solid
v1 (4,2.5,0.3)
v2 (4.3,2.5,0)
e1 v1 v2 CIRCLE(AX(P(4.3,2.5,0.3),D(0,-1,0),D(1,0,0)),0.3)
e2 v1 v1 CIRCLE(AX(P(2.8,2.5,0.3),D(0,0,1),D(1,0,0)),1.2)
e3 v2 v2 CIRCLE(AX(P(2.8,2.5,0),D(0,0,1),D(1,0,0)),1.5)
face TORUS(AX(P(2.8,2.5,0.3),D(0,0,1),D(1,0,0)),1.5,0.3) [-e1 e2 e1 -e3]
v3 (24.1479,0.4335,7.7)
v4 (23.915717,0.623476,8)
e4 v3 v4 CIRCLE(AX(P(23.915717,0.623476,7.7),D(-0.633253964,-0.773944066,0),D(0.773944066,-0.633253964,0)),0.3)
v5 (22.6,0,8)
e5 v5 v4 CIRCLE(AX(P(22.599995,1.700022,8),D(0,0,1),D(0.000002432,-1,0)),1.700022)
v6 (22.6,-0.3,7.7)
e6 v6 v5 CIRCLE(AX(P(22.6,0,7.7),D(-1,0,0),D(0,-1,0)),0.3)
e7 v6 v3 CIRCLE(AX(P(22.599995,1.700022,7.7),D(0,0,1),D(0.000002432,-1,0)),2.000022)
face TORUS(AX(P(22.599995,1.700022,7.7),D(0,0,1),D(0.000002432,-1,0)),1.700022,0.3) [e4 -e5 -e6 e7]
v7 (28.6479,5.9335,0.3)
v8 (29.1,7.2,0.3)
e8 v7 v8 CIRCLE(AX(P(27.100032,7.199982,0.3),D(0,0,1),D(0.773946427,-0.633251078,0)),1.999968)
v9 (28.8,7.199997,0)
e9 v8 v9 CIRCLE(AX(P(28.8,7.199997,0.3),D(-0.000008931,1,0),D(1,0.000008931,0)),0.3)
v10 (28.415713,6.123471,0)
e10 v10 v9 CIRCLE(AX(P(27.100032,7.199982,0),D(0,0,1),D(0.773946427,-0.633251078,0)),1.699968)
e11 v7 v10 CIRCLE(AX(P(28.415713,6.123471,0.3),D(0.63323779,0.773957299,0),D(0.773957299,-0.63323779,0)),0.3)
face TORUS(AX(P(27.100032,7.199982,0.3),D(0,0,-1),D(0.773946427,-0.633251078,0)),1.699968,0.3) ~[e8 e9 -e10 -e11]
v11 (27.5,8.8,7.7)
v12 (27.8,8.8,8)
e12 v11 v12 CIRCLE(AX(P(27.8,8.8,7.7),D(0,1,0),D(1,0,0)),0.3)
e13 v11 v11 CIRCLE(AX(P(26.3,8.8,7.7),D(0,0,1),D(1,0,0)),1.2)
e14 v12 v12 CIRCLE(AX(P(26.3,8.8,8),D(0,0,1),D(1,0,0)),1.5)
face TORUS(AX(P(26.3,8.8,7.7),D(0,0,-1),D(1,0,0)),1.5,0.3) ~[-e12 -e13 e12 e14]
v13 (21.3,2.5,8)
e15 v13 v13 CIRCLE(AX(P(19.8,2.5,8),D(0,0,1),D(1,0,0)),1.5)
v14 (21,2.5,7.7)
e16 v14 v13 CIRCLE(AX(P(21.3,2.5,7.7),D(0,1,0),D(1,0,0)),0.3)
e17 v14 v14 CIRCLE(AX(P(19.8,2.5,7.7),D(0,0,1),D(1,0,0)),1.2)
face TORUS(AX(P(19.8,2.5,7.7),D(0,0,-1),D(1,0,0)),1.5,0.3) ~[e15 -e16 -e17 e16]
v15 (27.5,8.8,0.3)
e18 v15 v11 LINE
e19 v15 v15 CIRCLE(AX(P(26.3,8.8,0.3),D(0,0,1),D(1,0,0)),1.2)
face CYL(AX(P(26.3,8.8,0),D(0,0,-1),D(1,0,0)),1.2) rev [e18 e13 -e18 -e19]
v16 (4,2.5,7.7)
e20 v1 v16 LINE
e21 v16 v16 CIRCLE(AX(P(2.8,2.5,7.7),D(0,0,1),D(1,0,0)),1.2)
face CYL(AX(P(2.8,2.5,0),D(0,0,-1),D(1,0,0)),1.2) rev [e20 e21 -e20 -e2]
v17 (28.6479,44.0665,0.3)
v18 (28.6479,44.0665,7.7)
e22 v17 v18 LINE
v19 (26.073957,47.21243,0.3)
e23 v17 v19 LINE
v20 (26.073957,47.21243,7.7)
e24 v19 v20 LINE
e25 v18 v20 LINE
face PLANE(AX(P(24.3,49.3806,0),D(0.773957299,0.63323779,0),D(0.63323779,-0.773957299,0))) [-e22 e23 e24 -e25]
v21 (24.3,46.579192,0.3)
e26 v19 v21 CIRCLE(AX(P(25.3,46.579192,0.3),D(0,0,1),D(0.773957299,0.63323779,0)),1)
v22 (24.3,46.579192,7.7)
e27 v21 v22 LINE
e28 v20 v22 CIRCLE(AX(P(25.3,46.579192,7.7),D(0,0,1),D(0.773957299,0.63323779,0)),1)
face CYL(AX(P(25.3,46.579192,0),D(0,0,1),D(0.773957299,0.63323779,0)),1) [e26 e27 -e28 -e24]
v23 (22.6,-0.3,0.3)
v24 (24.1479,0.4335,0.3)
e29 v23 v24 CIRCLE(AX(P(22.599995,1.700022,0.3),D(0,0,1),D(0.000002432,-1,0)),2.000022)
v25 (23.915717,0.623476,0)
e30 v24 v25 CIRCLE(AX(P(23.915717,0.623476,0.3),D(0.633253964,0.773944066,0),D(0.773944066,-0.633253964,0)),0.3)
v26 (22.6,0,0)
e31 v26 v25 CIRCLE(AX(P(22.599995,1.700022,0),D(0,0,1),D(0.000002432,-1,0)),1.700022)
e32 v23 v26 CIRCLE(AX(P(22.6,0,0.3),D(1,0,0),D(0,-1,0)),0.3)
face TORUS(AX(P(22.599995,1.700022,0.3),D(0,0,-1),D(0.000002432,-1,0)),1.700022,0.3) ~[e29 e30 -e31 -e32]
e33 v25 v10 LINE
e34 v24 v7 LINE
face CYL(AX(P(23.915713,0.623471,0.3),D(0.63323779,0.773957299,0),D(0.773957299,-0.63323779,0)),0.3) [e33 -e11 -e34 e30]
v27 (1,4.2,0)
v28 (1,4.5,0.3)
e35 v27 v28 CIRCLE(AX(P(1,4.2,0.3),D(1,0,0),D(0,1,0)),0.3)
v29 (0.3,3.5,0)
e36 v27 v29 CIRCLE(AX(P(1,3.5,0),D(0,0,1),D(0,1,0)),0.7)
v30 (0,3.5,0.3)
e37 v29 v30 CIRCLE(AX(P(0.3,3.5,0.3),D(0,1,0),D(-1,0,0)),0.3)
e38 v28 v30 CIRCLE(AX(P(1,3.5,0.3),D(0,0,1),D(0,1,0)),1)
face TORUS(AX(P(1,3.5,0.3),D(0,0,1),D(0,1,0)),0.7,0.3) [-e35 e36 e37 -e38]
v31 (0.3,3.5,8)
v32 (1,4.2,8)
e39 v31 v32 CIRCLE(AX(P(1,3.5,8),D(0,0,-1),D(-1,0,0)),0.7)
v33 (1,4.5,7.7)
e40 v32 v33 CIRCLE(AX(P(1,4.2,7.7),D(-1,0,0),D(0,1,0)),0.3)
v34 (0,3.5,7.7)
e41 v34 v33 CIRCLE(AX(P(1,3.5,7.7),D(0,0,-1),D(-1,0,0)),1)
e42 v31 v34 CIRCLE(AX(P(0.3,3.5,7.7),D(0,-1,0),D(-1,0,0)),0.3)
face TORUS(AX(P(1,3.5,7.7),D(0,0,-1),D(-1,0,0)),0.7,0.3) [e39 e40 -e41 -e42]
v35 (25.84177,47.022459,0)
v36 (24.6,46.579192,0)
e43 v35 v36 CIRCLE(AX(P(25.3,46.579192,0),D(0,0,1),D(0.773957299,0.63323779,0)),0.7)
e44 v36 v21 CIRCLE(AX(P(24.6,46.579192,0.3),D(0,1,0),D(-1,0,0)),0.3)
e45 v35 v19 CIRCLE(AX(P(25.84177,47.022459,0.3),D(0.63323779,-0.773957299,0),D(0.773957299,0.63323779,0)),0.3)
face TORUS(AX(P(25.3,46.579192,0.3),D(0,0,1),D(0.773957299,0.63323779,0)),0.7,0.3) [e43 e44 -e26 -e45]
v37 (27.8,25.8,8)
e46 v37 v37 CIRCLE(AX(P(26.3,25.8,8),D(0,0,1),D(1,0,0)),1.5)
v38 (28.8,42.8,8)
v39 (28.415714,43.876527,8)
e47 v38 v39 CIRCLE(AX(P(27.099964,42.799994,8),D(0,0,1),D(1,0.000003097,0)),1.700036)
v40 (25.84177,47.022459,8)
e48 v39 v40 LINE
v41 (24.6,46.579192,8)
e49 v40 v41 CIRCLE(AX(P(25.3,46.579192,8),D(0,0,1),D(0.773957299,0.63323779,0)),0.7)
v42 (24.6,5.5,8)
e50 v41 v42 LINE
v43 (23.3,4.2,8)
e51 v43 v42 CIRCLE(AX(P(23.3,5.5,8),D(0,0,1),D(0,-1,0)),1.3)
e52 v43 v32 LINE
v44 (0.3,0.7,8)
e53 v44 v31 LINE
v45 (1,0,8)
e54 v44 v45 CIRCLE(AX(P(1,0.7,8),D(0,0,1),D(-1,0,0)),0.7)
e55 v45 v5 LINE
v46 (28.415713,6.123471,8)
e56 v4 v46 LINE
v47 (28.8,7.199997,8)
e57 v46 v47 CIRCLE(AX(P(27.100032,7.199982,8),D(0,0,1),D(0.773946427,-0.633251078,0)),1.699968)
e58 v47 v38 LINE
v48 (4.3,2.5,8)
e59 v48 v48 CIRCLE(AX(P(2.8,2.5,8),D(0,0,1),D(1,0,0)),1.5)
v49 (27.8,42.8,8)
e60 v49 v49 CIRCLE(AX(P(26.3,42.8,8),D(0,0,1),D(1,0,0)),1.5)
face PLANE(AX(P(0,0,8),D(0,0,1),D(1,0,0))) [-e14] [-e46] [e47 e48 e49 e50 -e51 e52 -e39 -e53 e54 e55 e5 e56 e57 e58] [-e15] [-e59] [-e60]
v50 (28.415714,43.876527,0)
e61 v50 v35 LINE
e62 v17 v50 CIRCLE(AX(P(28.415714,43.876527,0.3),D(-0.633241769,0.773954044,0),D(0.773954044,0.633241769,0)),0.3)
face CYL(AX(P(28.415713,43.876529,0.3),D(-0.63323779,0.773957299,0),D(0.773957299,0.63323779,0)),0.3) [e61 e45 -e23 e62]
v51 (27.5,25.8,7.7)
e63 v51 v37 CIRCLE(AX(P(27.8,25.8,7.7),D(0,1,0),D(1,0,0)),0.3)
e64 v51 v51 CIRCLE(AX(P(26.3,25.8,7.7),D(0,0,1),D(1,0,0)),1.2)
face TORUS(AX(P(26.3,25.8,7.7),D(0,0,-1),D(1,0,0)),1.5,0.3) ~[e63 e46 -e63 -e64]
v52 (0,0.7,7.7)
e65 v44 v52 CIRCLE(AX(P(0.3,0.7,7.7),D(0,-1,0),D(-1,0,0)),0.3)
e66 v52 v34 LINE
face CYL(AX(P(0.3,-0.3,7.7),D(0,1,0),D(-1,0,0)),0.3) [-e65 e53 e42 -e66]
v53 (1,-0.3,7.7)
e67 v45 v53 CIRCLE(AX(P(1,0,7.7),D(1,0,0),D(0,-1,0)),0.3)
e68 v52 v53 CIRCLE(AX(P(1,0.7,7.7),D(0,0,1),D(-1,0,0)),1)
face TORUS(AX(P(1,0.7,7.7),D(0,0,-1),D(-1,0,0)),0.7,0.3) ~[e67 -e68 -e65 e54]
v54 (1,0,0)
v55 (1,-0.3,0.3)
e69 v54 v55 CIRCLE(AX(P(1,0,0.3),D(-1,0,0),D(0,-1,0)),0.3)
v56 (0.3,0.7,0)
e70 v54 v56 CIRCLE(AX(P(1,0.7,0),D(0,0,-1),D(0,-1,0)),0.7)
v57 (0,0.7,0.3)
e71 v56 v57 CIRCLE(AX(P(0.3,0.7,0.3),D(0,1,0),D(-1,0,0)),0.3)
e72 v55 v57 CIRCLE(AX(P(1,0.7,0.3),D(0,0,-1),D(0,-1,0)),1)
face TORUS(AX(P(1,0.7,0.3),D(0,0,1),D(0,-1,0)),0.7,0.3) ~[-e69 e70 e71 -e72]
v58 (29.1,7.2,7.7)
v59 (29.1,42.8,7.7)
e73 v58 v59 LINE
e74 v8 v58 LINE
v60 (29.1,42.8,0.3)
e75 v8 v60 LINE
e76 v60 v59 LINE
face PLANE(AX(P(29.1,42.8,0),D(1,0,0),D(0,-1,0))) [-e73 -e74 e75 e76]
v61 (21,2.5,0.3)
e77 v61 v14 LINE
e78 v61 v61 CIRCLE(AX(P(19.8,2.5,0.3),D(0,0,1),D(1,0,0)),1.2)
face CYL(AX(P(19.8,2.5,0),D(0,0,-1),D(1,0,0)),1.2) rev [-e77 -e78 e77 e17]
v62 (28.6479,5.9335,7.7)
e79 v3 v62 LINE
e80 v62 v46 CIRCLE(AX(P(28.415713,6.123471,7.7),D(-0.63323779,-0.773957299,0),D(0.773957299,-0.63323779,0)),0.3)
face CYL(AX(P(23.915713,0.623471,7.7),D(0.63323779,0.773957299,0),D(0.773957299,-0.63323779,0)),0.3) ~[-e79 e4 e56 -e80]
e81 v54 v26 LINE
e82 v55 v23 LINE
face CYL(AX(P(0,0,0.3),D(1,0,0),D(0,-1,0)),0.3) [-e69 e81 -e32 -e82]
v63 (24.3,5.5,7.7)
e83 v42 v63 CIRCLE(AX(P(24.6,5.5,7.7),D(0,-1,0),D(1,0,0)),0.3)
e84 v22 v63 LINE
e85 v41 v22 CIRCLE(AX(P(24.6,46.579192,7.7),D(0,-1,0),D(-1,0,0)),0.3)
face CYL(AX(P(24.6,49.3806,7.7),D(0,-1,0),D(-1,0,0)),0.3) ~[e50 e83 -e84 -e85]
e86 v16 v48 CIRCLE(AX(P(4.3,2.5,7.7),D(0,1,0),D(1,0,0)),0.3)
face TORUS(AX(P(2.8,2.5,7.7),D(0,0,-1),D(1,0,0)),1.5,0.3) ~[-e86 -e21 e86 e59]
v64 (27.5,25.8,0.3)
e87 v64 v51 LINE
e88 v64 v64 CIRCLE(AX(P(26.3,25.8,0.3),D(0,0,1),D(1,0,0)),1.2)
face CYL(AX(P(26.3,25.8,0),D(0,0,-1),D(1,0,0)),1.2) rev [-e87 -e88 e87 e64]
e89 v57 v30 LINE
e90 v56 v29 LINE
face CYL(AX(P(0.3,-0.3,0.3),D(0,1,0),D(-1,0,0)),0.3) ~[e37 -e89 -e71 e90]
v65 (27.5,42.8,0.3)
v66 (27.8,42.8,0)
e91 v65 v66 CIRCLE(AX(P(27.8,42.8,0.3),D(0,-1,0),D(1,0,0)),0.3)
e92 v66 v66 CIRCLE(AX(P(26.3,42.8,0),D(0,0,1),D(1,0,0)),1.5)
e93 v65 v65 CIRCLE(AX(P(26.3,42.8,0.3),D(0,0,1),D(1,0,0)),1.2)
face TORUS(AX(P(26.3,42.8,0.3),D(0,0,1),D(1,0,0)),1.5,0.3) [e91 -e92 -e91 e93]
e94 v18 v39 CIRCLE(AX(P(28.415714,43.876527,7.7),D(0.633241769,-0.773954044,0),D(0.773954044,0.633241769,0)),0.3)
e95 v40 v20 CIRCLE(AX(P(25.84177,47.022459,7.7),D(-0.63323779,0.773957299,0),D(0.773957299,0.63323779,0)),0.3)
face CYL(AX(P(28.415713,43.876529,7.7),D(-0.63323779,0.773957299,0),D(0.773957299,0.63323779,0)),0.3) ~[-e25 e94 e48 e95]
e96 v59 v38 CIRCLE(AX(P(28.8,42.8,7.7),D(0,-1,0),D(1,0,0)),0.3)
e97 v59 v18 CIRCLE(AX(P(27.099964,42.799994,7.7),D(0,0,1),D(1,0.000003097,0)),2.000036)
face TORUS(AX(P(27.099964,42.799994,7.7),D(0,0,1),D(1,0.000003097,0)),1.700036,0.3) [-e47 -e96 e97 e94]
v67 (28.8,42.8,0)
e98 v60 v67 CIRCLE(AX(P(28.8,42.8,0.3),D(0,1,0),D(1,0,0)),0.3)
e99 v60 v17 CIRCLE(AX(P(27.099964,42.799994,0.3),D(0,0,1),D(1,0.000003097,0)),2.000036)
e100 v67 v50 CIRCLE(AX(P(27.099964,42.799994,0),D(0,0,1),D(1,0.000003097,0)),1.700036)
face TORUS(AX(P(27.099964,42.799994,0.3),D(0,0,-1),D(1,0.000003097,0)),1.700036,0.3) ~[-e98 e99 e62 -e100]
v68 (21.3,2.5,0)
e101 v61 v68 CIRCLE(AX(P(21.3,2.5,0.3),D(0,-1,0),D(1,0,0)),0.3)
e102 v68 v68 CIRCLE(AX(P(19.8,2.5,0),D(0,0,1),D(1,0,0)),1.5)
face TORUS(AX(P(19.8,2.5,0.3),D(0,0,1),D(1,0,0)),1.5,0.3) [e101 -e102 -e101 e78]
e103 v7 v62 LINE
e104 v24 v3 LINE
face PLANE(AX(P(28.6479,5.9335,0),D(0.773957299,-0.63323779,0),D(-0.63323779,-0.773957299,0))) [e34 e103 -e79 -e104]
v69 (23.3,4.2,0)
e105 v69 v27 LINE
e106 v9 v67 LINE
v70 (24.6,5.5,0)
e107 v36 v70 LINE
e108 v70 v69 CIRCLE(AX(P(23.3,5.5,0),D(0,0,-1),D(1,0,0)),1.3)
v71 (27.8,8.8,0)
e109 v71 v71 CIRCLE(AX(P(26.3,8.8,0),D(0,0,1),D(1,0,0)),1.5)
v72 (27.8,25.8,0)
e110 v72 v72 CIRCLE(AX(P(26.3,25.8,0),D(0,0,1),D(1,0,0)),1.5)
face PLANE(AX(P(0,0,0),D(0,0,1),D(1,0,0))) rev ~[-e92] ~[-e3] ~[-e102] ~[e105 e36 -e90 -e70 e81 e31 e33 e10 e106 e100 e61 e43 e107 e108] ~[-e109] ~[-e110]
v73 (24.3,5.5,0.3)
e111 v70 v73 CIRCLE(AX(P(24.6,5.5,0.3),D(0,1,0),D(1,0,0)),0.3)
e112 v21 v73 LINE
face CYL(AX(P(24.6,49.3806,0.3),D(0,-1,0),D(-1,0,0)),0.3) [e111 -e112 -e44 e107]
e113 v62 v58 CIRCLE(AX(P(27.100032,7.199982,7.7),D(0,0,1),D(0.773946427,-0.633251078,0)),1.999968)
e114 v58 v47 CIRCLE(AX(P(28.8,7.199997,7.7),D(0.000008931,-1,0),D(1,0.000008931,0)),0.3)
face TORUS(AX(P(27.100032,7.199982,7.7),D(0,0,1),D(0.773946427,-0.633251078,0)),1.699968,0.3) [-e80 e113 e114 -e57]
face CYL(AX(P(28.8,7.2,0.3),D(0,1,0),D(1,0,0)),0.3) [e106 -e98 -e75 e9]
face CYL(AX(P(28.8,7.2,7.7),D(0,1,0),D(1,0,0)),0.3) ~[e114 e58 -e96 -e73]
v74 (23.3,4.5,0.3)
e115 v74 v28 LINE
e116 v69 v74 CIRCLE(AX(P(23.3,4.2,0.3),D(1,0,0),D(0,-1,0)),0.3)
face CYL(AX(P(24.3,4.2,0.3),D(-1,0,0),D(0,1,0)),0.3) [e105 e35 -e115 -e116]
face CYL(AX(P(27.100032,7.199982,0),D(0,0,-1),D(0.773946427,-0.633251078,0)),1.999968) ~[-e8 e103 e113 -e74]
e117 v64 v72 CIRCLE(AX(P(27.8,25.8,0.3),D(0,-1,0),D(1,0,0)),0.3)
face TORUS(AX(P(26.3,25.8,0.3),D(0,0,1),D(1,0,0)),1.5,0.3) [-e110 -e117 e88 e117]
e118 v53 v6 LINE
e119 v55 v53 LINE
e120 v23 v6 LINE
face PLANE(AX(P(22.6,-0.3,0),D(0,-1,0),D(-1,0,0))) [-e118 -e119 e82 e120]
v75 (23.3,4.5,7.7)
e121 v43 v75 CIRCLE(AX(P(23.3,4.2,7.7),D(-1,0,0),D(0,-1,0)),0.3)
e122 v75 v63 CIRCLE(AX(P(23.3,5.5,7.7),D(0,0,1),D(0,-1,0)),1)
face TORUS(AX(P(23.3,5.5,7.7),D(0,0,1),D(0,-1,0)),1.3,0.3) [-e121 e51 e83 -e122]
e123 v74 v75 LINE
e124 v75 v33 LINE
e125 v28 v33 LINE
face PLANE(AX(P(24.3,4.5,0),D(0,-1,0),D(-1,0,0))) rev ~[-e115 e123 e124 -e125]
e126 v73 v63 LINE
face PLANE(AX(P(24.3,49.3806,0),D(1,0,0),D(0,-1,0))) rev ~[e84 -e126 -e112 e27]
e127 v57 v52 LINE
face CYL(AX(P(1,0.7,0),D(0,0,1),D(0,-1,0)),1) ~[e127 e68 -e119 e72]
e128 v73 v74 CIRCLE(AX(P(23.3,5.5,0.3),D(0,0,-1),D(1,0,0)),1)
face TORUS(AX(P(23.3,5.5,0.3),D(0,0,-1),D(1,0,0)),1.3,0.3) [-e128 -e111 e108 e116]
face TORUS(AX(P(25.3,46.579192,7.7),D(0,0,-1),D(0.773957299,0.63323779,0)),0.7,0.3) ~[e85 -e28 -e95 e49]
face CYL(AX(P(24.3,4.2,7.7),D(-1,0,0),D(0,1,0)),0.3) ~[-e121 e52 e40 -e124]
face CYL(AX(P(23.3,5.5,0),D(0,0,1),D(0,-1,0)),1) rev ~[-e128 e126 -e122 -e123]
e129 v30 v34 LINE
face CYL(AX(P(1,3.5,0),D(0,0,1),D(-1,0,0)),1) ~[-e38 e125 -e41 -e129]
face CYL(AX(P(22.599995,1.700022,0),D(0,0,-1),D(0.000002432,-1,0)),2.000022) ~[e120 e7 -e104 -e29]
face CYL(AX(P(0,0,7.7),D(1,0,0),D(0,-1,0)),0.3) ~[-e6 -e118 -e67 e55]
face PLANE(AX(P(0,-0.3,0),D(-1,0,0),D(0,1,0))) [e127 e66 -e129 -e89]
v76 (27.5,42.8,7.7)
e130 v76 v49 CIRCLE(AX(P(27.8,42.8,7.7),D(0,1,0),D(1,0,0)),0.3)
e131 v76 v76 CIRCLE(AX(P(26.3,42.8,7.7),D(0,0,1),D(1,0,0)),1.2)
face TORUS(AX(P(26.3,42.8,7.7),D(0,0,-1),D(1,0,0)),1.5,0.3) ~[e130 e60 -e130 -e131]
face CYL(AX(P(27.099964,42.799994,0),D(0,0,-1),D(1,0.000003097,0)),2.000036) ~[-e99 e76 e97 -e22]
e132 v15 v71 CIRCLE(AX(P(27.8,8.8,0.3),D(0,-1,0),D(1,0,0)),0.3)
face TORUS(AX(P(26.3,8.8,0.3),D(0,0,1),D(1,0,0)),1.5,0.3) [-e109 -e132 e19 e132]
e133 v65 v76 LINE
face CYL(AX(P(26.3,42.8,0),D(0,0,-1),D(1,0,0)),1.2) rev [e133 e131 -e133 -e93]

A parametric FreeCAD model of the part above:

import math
import FreeCAD as App
import Part
import Sketcher
from FreeCAD import Vector
Q = App.Units.Quantity


def edges_at(feature, points):
    """Names of the edges that pass closest to the given points."""
    edges = feature.Shape.Edges
    near = lambda p: min(range(len(edges)), key=lambda i: edges[i].distToShape(Part.Vertex(*p))[0])
    return sorted({f"Edge{near(p) + 1}" for p in points})

doc = App.newDocument("Part")
params = doc.addObject("Spreadsheet::Sheet", "Params")
for row, (alias, value) in enumerate([
    ("sketch1_radius", "2 mm"),
    ("sketch1_diameter", "2.4 mm"),
    ("sketch1_width", "24.3 mm"),
    ("sketch1_width2", "22.6 mm"),
    ("sketch1_height", "4.8 mm"),
    ("pad1_length", "8 mm"),
    ("fillet_radius", "1 mm"),
    ("fillet2_radius", "0.3 mm"),
], start=1):
    params.set(f"A{row}", alias)
    params.set(f"B{row}", "=" + value)
    params.setAlias(f"B{row}", alias)

body = doc.addObject("PartDesign::Body", "Body")

# Sketch on XY plane
sketch1 = body.newObject("Sketcher::SketchObject", "Sketch")
sketch1.AttachmentSupport = (doc.getObject("XY_Plane"), [""])
sketch1.MapMode = "FlatFace"
sketch1.addGeometry([
    Part.LineSegment(Vector(28.6479, 44.0665, 0), Vector(24.3, 49.3806, 0)),  # 0
    Part.LineSegment(Vector(24.3, 49.3806, 0), Vector(24.3, 4.5, 0)),  # 1
    Part.LineSegment(Vector(24.3, 4.5, 0), Vector(0, 4.5, 0)),  # 2
    Part.LineSegment(Vector(0, 4.5, 0), Vector(0, -0.3, 0)),  # 3
    Part.LineSegment(Vector(0, -0.3, 0), Vector(22.6, -0.3, 0)),  # 4
    Part.ArcOfCircle(Part.Circle(Vector(22.6, 1.7, 0), Vector(0, 0, 1), 2), math.radians(-90), math.radians(-39.290213)),  # 5
    Part.LineSegment(Vector(24.1479, 0.4335, 0), Vector(28.6479, 5.9335, 0)),  # 6
    Part.ArcOfCircle(Part.Circle(Vector(27.1, 7.2, 0), Vector(0, 0, 1), 2.000004), math.radians(-39.290213), math.radians(0)),  # 7
    Part.LineSegment(Vector(29.1, 7.2, 0), Vector(29.1, 42.8, 0)),  # 8
    Part.ArcOfCircle(Part.Circle(Vector(27.1, 42.8, 0), Vector(0, 0, 1), 2), math.radians(0), math.radians(39.290213)),  # 9
    Part.Circle(Vector(2.8, 2.5, 0), Vector(0, 0, 1), 1.2),  # 10
    Part.Circle(Vector(19.8, 2.5, 0), Vector(0, 0, 1), 1.2),  # 11
    Part.Circle(Vector(26.3, 8.8, 0), Vector(0, 0, 1), 1.2),  # 12
    Part.Circle(Vector(26.3, 25.8, 0), Vector(0, 0, 1), 1.2),  # 13
    Part.Circle(Vector(26.3, 42.8, 0), Vector(0, 0, 1), 1.2),  # 14
], False)
sketch1.addConstraint([
    Sketcher.Constraint("Coincident", 0, 2, 1, 1),
    Sketcher.Constraint("Coincident", 1, 2, 2, 1),
    Sketcher.Constraint("Coincident", 2, 2, 3, 1),
    Sketcher.Constraint("Coincident", 3, 2, 4, 1),
    Sketcher.Constraint("Tangent", 4, 2, 5, 1),
    Sketcher.Constraint("Tangent", 5, 2, 6, 1),
    Sketcher.Constraint("Tangent", 6, 2, 7, 1),
    Sketcher.Constraint("Tangent", 7, 2, 8, 1),
    Sketcher.Constraint("Tangent", 8, 2, 9, 1),
    Sketcher.Constraint("Tangent", 9, 2, 0, 1),
    Sketcher.Constraint("Vertical", 1),
    Sketcher.Constraint("Horizontal", 2),
    Sketcher.Constraint("Vertical", 3),
    Sketcher.Constraint("Horizontal", 4),
    Sketcher.Constraint("Vertical", 8),
    Sketcher.Constraint("Equal", 5, 7),
    Sketcher.Constraint("Equal", 7, 9),
    Sketcher.Constraint("Equal", 10, 11),
    Sketcher.Constraint("Equal", 11, 12),
    Sketcher.Constraint("Equal", 12, 13),
    Sketcher.Constraint("Equal", 13, 14),
    Sketcher.Constraint("PointOnObject", 2, 2, -2),
    Sketcher.Constraint("Horizontal", 10, 3, 11, 3),
    Sketcher.Constraint("Horizontal", 9, 3, 14, 3),
    Sketcher.Constraint("Vertical", 12, 3, 13, 3),
    Sketcher.Constraint("Vertical", 13, 3, 14, 3),
    Sketcher.Constraint("Vertical", 6, 2, 9, 2),
    Sketcher.Constraint("Radius", 5, Q("2 mm")),
    Sketcher.Constraint("Diameter", 10, Q("2.4 mm")),
    Sketcher.Constraint("DistanceY", 5, 3, 10, 3, Q("0.8 mm")),
    Sketcher.Constraint("DistanceX", 12, 3, 7, 3, Q("0.8 mm")),
    Sketcher.Constraint("DistanceX", 2, 2, 2, 1, Q("24.3 mm")),
    Sketcher.Constraint("DistanceX", 4, 1, 4, 2, Q("22.6 mm")),
    Sketcher.Constraint("DistanceY", 3, 2, 3, 1, Q("4.8 mm")),
    Sketcher.Constraint("DistanceY", 8, 1, 8, 2, Q("35.6 mm")),
    Sketcher.Constraint("DistanceX", 10, 3, 11, 3, Q("17 mm")),
    Sketcher.Constraint("DistanceY", 12, 3, 9, 3, Q("34 mm")),
    Sketcher.Constraint("DistanceY", 12, 3, 13, 3, Q("17 mm")),
    Sketcher.Constraint("DistanceX", 0, 2, 14, 3, Q("2 mm")),
    Sketcher.Constraint("DistanceY", -1, 1, 5, 3, Q("1.7 mm")),
    Sketcher.Constraint("DistanceY", -1, 1, 7, 3, Q("7.2 mm")),
    Sketcher.Constraint("DistanceX", -1, 1, 10, 3, Q("2.8 mm")),
])
sketch1.setExpression("Constraints[27]", "Params.sketch1_radius")
sketch1.setExpression("Constraints[28]", "Params.sketch1_diameter")
sketch1.setExpression("Constraints[31]", "Params.sketch1_width")
sketch1.setExpression("Constraints[32]", "Params.sketch1_width2")
sketch1.setExpression("Constraints[33]", "Params.sketch1_height")
pad1 = body.newObject("PartDesign::Pad", "Pad")
pad1.Profile = sketch1
pad1.setExpression("Length", "Params.pad1_length")
doc.recompute()

fillet = body.newObject("PartDesign::Fillet", "Fillet")
fillet.Base = (pad1, edges_at(pad1, [
    (24.3, 4.5, 4),
    (24.3, 49.381, 4),
    (0, 4.5, 4),
    (0, -0.3, 4),
]))
fillet.setExpression("Radius", "Params.fillet_radius")
doc.recompute()

fillet2 = body.newObject("PartDesign::Fillet", "Fillet001")
fillet2.Base = (fillet, edges_at(fillet, [
    (25.1, 42.8, 8),
    (25.1, 25.8, 8),
    (25.1, 8.8, 8),
    (18.6, 2.5, 8),
    (1.6, 2.5, 8),
    (25.1, 8.8, 0),
    (25.1, 25.8, 0),
    (25.1, 42.8, 0),
    (18.6, 2.5, 0),
    (1.6, 2.5, 0),
    (23.456, -0.107, 0),
    (11.3, -0.3, 0),
    (28.984, 6.528, 0),
    (29.1, 25, 0),
    (28.984, 43.472, 0),
    (26.474, 46.724, 0),
    (26.398, 3.183, 0),
    (24.3, 26.94, 0),
    (12.15, 4.5, 0),
    (0, 2.1, 0),
    (0, 2.1, 8),
    (23.456, -0.107, 8),
    (26.398, 3.183, 8),
    (28.984, 6.528, 8),
    (29.1, 25, 8),
    (28.984, 43.472, 8),
    (26.474, 46.724, 8),
    (11.3, -0.3, 8),
    (12.15, 4.5, 8),
    (24.3, 26.94, 8),
]))
fillet2.setExpression("Radius", "Params.fillet2_radius")

doc.recompute()
